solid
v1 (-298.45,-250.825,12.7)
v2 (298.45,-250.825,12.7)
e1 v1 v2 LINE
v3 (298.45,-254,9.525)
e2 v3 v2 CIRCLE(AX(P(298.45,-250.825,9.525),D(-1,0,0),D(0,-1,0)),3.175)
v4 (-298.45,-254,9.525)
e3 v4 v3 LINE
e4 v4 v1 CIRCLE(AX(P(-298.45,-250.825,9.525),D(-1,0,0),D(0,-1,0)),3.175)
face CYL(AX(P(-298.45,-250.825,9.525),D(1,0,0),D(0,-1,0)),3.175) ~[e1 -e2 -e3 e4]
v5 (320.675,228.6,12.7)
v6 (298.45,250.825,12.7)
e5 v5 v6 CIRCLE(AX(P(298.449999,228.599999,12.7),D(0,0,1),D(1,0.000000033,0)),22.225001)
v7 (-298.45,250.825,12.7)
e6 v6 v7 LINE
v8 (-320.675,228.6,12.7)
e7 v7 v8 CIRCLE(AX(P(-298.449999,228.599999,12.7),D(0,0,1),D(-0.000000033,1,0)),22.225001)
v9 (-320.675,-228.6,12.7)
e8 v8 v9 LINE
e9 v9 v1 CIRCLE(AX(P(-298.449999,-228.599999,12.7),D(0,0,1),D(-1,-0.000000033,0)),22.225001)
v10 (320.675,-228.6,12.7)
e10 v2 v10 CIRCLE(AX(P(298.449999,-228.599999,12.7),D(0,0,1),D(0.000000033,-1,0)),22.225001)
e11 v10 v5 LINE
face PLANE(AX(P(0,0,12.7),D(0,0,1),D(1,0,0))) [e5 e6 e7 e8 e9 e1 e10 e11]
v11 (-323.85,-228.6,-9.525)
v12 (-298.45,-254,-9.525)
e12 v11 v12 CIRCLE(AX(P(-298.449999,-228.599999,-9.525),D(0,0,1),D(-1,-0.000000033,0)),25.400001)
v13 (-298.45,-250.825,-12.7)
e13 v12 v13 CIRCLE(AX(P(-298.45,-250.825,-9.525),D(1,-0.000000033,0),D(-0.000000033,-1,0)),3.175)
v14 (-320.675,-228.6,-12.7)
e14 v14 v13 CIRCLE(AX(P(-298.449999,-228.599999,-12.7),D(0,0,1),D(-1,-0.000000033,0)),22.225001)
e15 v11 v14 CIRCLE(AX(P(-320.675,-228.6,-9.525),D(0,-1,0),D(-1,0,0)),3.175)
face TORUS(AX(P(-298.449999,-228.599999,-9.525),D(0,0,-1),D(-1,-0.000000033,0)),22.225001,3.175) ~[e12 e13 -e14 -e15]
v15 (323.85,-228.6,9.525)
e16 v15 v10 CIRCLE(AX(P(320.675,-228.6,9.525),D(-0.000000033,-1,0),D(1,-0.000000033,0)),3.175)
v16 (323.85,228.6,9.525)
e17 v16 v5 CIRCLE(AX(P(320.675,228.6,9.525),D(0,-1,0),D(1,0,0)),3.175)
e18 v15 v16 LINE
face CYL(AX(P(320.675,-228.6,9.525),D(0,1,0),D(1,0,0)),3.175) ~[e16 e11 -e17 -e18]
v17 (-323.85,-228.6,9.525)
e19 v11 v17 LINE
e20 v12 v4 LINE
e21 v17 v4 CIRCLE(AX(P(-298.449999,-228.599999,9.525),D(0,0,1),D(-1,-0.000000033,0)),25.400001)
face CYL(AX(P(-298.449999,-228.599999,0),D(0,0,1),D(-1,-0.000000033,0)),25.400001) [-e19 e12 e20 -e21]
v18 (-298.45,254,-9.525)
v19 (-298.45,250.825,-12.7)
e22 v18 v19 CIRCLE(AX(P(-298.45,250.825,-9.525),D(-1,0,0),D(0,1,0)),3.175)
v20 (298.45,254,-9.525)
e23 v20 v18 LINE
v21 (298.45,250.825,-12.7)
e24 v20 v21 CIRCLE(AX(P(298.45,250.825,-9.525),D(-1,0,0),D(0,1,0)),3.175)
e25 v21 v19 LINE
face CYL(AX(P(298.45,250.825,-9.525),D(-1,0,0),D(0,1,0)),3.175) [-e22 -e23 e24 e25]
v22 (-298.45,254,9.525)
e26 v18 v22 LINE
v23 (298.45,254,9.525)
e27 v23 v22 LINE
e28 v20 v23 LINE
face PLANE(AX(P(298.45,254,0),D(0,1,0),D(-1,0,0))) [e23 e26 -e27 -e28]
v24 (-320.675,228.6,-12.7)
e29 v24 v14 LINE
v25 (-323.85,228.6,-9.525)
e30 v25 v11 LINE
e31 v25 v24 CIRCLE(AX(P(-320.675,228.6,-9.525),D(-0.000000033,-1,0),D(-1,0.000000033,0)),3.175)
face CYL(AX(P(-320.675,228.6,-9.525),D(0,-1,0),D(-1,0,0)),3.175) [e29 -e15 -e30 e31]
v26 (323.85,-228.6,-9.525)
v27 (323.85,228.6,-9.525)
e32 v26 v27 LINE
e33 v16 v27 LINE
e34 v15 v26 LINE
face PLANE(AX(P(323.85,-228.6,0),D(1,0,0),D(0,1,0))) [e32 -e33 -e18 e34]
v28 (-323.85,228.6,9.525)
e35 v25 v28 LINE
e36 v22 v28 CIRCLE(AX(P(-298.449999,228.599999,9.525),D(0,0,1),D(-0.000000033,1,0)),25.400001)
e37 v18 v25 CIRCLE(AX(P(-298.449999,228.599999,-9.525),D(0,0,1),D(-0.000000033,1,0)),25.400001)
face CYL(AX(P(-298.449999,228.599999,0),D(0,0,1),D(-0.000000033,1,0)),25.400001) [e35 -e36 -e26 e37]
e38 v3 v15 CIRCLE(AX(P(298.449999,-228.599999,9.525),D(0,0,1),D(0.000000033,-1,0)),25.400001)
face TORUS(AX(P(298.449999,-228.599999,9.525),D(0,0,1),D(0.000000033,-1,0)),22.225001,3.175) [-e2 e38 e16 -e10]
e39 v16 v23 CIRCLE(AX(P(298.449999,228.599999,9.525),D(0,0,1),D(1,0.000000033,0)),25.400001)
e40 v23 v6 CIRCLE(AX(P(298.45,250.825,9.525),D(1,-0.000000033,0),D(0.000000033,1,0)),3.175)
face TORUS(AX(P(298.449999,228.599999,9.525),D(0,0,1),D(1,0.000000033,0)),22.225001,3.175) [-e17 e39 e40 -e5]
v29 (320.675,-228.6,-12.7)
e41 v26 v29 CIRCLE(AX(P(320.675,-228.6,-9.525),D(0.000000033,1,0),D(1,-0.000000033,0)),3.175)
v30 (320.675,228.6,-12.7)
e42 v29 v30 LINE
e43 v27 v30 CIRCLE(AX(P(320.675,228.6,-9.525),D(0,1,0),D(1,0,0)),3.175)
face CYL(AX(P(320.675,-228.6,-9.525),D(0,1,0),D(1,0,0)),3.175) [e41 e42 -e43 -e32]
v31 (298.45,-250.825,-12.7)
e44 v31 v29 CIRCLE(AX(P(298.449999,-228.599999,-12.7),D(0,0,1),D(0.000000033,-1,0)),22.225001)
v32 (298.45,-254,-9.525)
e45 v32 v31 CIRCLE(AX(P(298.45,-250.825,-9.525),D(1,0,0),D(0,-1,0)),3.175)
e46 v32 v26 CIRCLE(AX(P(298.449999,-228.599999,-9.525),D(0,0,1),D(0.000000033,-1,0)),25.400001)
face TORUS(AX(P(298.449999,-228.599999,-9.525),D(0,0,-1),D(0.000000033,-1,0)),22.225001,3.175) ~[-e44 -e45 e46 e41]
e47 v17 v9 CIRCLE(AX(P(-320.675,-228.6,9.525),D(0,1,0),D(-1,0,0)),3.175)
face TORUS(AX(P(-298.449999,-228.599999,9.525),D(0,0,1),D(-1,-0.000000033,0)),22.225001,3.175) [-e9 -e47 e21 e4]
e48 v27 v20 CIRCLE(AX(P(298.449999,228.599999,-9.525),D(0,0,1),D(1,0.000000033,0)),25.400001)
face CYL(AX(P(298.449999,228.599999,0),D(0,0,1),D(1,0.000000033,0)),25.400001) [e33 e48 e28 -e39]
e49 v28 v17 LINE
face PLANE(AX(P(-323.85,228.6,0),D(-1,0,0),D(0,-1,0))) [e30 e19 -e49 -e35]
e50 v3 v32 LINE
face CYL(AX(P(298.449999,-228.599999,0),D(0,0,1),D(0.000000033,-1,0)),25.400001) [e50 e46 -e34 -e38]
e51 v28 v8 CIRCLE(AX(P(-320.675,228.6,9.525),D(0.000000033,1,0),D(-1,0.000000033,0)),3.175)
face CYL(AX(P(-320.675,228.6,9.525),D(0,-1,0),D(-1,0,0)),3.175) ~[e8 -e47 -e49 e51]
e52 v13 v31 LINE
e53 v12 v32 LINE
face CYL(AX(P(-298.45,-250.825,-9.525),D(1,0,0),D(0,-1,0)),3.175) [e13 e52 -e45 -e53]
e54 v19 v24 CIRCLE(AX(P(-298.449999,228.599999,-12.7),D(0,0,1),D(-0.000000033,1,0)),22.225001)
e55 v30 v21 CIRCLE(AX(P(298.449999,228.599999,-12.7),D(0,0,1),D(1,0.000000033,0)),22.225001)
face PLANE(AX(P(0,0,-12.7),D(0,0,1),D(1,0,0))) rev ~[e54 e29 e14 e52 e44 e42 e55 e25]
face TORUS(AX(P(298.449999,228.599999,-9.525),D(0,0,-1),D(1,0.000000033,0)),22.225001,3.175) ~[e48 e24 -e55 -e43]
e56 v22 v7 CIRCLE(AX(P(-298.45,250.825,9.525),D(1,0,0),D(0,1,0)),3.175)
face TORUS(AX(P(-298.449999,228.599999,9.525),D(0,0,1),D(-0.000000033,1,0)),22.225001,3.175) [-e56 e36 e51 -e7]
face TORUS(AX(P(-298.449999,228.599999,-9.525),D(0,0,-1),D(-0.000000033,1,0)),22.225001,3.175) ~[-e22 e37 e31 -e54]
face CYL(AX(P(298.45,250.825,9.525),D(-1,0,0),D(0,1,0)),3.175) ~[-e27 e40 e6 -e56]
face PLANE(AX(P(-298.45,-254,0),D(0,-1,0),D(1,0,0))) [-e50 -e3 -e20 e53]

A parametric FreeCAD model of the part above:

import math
import FreeCAD as App
import Part
import Sketcher
Q = App.Units.Quantity


def edges_at(feature, points):
    """Names of the edges that pass closest to the given points."""
    edges = feature.Shape.Edges
    near = lambda p: min(range(len(edges)), key=lambda i: edges[i].distToShape(Part.Vertex(*p))[0])
    return sorted({f"Edge{near(p) + 1}" for p in points})

doc = App.newDocument("Part")
params = doc.addObject("Spreadsheet::Sheet", "Params")
for row, (alias, value) in enumerate([
    ("sketch1_radius", "1 in"),
    ("sketch1_height", "18 in"),
    ("sketch1_width", "23.5 in"),
    ("pad1_length", "1 in"),
    ("fillet_radius", "0.125 in"),
], start=1):
    params.set(f"A{row}", alias)
    params.set(f"B{row}", "=" + value)
    params.setAlias(f"B{row}", alias)

body = doc.addObject("PartDesign::Body", "Body")

sketch1 = body.newObject("Sketcher::SketchObject", "Sketch")
sketch1.AttachmentSupport = (doc.getObject("XY_Plane"), [""])
sketch1.MapMode = "FlatFace"
sketch1.addGeometry([
    Part.ArcOfCircle(Part.Circle(App.Vector(298, 229, 0), App.Vector(0, 0, 1), 25), math.radians(0), math.radians(90)),
    Part.LineSegment(App.Vector(298, 254, 0), App.Vector(-298, 254, 0)),
    Part.ArcOfCircle(Part.Circle(App.Vector(-298, 229, 0), App.Vector(0, 0, 1), 25), math.radians(90), math.radians(180)),
    Part.LineSegment(App.Vector(-324, 229, 0), App.Vector(-324, -229, 0)),
    Part.ArcOfCircle(Part.Circle(App.Vector(-298, -229, 0), App.Vector(0, 0, 1), 25), math.radians(-180), math.radians(-90)),
    Part.LineSegment(App.Vector(-298, -254, 0), App.Vector(298, -254, 0)),
    Part.ArcOfCircle(Part.Circle(App.Vector(298, -229, 0), App.Vector(0, 0, 1), 25), math.radians(-90), math.radians(0)),
    Part.LineSegment(App.Vector(324, -229, 0), App.Vector(324, 229, 0)),
], False)
sketch1.addConstraint([
    Sketcher.Constraint("Tangent", 0, 2, 1, 1),
    Sketcher.Constraint("Tangent", 1, 2, 2, 1),
    Sketcher.Constraint("Tangent", 2, 2, 3, 1),
    Sketcher.Constraint("Tangent", 3, 2, 4, 1),
    Sketcher.Constraint("Tangent", 4, 2, 5, 1),
    Sketcher.Constraint("Tangent", 5, 2, 6, 1),
    Sketcher.Constraint("Tangent", 6, 2, 7, 1),
    Sketcher.Constraint("Tangent", 7, 2, 0, 1),
    Sketcher.Constraint("Horizontal", 1),
    Sketcher.Constraint("Vertical", 3),
    Sketcher.Constraint("Horizontal", 5),
    Sketcher.Constraint("Vertical", 7),
    Sketcher.Constraint("Equal", 0, 2),
    Sketcher.Constraint("Equal", 2, 4),
    Sketcher.Constraint("Equal", 4, 6),
    Sketcher.Constraint("Symmetric", 0, 3, 4, 3, -1, 1),
    Sketcher.Constraint("Radius", 0, Q("1 in")),
    Sketcher.Constraint("DistanceY", 3, 2, 3, 1, Q("18 in")),
    Sketcher.Constraint("DistanceX", 1, 2, 1, 1, Q("23.5 in")),
])
sketch1.setExpression("Constraints[16]", "Params.sketch1_radius")
sketch1.setExpression("Constraints[17]", "Params.sketch1_height")
sketch1.setExpression("Constraints[18]", "Params.sketch1_width")
pad1 = body.newObject("PartDesign::Pad", "Pad")
pad1.Profile = sketch1
pad1.setExpression("Length", "Params.pad1_length")
pad1.Midplane = True
doc.recompute()

fillet = body.newObject("PartDesign::Fillet", "Fillet")
fillet.Base = (pad1, edges_at(pad1, [(0, -254, 12.7), (0, 254, -12.7)]))
fillet.setExpression("Radius", "Params.fillet_radius")

doc.recompute()
